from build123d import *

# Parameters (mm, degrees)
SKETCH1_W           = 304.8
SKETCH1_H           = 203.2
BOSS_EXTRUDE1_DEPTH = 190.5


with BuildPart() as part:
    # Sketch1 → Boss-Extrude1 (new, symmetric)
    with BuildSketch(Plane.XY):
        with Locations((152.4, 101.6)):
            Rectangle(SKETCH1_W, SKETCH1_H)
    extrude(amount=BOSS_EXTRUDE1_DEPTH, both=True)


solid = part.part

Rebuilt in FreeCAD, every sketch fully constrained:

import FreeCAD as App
import Part
import Sketcher

V = App.Vector
Q = App.Units.Quantity


def add_polygon(sketch, points):
    """Adds a closed chain of lines whose ends are joined by coincident constraints."""
    first, n = sketch.GeometryCount, len(points)
    for a, b in zip(points, points[1:] + points[:1]):
        sketch.addGeometry(Part.LineSegment(App.Vector(*a, 0), App.Vector(*b, 0)), False)
    for i in range(n):
        sketch.addConstraint(Sketcher.Constraint("Coincident", first + i, 2, first + (i + 1) % n, 1))

doc = App.newDocument("Part")
params = doc.addObject("Spreadsheet::Sheet", "Params")
for row, (alias, value) in enumerate([
    ("sketch1_width", "12 in"),
    ("sketch1_height", "8 in"),
    ("pad1_length", "15 in"),
], start=1):
    params.set(f"A{row}", alias)
    params.set(f"B{row}", "=" + value)
    params.setAlias(f"B{row}", alias)

body = doc.addObject("PartDesign::Body", "Body")

sketch1 = body.newObject("Sketcher::SketchObject", "Sketch")
sketch1.AttachmentSupport = (doc.getObject("XY_Plane"), [""])
sketch1.MapMode = "FlatFace"
add_polygon(sketch1, [(0, 203), (0, 0), (305, 0), (305, 203)])
sketch1.addConstraint(Sketcher.Constraint("Vertical", 0))
sketch1.addConstraint(Sketcher.Constraint("Horizontal", 1))
sketch1.addConstraint(Sketcher.Constraint("Vertical", 2))
sketch1.addConstraint(Sketcher.Constraint("Horizontal", 3))
sketch1.addConstraint(Sketcher.Constraint("Coincident", 0, 2, -1, 1))
sketch1.addConstraint(Sketcher.Constraint("DistanceX", 1, 1, 1, 2, Q("12 in")))
sketch1.addConstraint(Sketcher.Constraint("DistanceY", 0, 2, 0, 1, Q("8 in")))
sketch1.setExpression("Constraints[9]", "Params.sketch1_width")
sketch1.setExpression("Constraints[10]", "Params.sketch1_height")
pad1 = body.newObject("PartDesign::Pad", "Pad")
pad1.Profile = sketch1
pad1.setExpression("Length", "Params.pad1_length")
pad1.Midplane = True

doc.recompute()
